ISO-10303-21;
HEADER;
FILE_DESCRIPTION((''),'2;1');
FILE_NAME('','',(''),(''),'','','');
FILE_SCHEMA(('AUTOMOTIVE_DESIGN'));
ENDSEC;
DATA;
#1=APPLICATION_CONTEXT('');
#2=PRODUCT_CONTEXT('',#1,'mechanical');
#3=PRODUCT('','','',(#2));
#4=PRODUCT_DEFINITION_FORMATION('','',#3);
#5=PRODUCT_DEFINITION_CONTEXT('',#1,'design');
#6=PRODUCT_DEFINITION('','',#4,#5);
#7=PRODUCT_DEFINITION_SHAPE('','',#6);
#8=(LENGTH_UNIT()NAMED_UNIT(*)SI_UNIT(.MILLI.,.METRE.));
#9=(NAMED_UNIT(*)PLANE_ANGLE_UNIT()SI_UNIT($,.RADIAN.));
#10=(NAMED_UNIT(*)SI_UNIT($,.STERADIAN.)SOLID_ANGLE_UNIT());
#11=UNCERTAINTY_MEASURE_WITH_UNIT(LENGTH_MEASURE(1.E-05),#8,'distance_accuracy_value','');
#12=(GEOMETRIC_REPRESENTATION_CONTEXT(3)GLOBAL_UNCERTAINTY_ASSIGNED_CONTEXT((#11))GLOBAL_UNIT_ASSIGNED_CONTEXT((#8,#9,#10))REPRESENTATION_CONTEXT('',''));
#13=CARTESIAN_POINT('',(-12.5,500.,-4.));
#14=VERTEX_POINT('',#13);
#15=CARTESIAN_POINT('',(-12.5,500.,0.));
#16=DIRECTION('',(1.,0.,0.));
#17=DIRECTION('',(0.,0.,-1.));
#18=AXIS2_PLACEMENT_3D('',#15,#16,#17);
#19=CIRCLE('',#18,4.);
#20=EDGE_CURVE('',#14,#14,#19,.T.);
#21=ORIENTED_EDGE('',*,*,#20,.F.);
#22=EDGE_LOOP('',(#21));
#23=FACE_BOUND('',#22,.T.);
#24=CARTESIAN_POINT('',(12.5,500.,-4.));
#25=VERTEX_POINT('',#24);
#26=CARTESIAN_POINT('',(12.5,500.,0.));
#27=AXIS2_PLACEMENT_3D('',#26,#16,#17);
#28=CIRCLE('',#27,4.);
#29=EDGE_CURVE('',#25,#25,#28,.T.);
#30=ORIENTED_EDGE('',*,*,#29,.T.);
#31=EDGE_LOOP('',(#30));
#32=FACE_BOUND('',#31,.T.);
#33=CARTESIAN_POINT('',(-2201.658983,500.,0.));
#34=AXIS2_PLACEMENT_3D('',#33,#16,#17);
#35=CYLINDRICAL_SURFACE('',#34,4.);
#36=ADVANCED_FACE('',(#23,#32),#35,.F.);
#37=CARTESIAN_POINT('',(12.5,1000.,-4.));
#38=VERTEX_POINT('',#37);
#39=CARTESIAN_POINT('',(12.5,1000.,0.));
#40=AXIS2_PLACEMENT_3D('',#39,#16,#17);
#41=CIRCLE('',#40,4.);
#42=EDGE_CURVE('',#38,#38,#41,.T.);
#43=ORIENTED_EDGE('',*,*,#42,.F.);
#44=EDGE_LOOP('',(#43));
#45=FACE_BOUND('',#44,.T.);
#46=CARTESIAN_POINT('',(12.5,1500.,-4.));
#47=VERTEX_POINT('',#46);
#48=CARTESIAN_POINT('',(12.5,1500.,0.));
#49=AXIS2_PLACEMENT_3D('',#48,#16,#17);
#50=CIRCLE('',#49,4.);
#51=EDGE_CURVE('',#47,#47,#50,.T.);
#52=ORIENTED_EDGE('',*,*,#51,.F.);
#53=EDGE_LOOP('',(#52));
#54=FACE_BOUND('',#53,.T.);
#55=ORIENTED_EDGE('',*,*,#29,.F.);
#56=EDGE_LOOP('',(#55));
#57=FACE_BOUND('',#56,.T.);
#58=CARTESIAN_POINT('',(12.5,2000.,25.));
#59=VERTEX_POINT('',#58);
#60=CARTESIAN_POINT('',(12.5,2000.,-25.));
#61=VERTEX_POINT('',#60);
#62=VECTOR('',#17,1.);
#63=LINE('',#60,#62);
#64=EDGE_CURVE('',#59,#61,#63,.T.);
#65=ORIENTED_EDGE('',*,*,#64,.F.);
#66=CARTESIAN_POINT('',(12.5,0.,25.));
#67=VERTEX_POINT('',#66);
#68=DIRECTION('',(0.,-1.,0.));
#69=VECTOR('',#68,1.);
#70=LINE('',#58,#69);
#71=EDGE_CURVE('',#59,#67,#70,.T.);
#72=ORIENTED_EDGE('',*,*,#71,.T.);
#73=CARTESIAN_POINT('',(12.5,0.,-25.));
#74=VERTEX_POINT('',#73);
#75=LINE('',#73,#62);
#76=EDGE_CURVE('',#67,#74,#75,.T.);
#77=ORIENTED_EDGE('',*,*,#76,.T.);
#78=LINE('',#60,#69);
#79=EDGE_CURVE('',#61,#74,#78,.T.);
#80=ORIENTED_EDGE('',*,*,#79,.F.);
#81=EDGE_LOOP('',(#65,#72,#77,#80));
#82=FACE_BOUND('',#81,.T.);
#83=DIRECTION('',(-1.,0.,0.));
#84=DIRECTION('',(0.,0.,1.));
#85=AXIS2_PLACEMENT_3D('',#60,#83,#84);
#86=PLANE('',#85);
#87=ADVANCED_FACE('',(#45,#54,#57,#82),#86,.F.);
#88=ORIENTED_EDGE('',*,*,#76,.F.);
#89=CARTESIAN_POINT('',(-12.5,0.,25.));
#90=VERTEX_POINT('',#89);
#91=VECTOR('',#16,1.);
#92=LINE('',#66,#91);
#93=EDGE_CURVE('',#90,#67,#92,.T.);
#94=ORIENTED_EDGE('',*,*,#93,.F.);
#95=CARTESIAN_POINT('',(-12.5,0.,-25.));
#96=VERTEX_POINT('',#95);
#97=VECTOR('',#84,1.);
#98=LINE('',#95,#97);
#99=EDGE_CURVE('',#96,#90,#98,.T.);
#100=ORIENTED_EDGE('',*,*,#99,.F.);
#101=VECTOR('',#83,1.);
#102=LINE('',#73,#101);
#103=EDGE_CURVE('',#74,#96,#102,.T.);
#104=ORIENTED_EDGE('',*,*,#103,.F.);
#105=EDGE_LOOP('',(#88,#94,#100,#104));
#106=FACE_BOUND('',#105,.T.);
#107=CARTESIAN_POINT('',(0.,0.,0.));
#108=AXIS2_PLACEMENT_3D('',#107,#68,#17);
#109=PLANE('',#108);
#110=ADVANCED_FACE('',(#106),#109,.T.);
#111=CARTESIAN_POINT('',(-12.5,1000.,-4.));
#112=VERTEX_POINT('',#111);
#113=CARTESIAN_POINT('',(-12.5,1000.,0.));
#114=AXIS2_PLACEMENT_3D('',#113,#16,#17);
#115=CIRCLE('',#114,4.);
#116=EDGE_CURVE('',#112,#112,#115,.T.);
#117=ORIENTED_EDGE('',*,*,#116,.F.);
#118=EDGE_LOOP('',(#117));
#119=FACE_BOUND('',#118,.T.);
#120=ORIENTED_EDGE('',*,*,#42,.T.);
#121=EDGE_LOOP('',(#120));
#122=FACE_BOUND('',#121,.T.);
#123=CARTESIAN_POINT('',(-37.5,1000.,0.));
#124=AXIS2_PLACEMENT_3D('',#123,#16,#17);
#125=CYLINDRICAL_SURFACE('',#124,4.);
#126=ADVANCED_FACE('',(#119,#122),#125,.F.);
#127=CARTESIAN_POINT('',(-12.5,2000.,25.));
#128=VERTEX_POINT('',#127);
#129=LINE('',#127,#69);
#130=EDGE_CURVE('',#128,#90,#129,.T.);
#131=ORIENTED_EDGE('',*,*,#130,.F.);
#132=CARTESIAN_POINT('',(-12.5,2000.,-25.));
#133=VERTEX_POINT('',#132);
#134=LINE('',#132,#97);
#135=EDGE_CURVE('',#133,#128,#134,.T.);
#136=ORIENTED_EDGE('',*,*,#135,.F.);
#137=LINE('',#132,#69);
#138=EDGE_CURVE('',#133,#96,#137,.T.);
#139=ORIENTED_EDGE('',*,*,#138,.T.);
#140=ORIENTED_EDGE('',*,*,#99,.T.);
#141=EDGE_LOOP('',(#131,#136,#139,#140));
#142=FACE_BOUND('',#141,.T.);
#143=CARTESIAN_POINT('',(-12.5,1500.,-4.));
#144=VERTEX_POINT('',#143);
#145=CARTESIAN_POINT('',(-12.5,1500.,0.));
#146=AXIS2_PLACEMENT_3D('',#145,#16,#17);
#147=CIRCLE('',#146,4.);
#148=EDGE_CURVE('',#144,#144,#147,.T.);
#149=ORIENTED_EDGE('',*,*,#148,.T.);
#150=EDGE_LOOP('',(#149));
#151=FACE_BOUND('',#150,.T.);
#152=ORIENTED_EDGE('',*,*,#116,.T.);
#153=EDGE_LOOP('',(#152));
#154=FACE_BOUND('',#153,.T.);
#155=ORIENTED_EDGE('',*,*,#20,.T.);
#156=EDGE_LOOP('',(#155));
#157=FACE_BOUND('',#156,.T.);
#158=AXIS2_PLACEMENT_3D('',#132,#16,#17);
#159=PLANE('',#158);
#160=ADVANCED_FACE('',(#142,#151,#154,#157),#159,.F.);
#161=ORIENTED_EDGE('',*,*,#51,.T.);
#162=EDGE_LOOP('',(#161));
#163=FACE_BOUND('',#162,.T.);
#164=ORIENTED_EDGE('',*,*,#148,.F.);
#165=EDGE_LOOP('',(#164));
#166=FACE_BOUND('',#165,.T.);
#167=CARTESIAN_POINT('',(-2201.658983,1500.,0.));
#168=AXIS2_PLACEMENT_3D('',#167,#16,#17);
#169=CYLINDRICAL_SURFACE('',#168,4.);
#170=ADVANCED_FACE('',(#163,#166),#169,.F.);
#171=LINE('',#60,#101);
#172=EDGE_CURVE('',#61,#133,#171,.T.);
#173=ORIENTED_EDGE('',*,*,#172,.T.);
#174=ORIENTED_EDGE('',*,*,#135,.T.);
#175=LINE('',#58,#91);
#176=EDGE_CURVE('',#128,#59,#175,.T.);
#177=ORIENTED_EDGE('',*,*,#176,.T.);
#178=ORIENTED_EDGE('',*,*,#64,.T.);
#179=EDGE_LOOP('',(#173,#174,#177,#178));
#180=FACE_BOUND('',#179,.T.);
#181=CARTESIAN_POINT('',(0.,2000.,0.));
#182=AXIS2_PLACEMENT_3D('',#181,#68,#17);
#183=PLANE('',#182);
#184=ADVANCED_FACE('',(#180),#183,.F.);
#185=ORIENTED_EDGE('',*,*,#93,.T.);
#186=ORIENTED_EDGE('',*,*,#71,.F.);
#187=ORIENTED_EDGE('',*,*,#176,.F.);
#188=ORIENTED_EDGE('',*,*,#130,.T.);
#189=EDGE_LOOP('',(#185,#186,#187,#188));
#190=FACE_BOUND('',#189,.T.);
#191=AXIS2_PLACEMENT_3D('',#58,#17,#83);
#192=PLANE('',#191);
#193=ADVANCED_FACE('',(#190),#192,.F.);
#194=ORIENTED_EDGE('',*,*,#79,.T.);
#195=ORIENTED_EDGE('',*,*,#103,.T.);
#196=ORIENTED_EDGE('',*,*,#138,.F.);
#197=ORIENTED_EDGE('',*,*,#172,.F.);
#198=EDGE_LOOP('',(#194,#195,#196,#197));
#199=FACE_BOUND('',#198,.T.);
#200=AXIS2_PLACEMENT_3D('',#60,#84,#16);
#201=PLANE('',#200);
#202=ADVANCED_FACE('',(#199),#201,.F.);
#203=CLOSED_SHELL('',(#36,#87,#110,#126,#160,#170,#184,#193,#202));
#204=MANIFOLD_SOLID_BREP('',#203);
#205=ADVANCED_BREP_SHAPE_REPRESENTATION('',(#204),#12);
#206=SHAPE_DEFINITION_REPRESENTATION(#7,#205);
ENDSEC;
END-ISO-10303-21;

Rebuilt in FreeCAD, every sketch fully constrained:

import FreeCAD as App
import Part
import Sketcher

V = App.Vector
Q = App.Units.Quantity

doc = App.newDocument("Part")
body = doc.addObject("PartDesign::Body", "Body")

sketch1 = body.newObject("Sketcher::SketchObject", "Sketch")
sketch1.AttachmentSupport = (doc.getObject("XZ_Plane"), [""])
sketch1.MapMode = "FlatFace"
sketch1.addGeometry([
    Part.LineSegment(V(-12.5, -25, 0), V(-12.5, 25, 0)),
    Part.LineSegment(V(-12.5, 25, 0), V(12.5, 25, 0)),
    Part.LineSegment(V(12.5, 25, 0), V(12.5, -25, 0)),
    Part.LineSegment(V(12.5, -25, 0), V(-12.5, -25, 0)),
], False)
sketch1.addConstraint([
    Sketcher.Constraint("Coincident", 0, 2, 1, 1),
    Sketcher.Constraint("Coincident", 1, 2, 2, 1),
    Sketcher.Constraint("Coincident", 2, 2, 3, 1),
    Sketcher.Constraint("Coincident", 3, 2, 0, 1),
    Sketcher.Constraint("Vertical", 0),
    Sketcher.Constraint("Horizontal", 1),
    Sketcher.Constraint("Vertical", 2),
    Sketcher.Constraint("Horizontal", 3),
    Sketcher.Constraint("Symmetric", 0, 2, 2, 2, -1, 1),
    Sketcher.Constraint("DistanceX", 1, 1, 1, 2, Q("25 mm")),
    Sketcher.Constraint("DistanceY", 0, 1, 0, 2, Q("50 mm")),
])
pad1 = body.newObject("PartDesign::Pad", "Pad")
pad1.Profile = sketch1
pad1.Length = 2000
pad1.Reversed = True

sketch2 = body.newObject("Sketcher::SketchObject", "Sketch001")
sketch2.AttachmentSupport = (doc.getObject("YZ_Plane"), [""])
sketch2.MapMode = "FlatFace"
sketch2.AttachmentOffset = App.Placement(V(0, 0, 12.5), App.Rotation())
sketch2.addGeometry([
    Part.Circle(V(1500, 0, 0), V(0, 0, 1), 4),
    Part.Circle(V(500, 0, 0), V(0, 0, 1), 4),
], False)
sketch2.addConstraint([
    Sketcher.Constraint("Equal", 0, 1),
    Sketcher.Constraint("PointOnObject", 0, 3, -1),
    Sketcher.Constraint("PointOnObject", 1, 3, -1),
    Sketcher.Constraint("Diameter", 0, Q("8 mm")),
    Sketcher.Constraint("DistanceX", -1, 1, 0, 3, Q("1500 mm")),
    Sketcher.Constraint("DistanceX", -1, 1, 1, 3, Q("500 mm")),
])
pocket1 = body.newObject("PartDesign::Pocket", "Pocket")
pocket1.Profile = sketch2
pocket1.Length = 2214.158983

sketch3 = body.newObject("Sketcher::SketchObject", "Sketch002")
sketch3.AttachmentSupport = (doc.getObject("YZ_Plane"), [""])
sketch3.MapMode = "FlatFace"
sketch3.AttachmentOffset = App.Placement(V(0, 0, 12.5), App.Rotation())
sketch3.addGeometry(Part.Circle(V(1000, 0, 0), V(0, 0, 1), 4), False)
sketch3.addConstraint([
    Sketcher.Constraint("PointOnObject", 0, 3, -1),
    Sketcher.Constraint("Diameter", 0, Q("8 mm")),
    Sketcher.Constraint("DistanceX", -1, 1, 0, 3, Q("1000 mm")),
])
pocket2 = body.newObject("PartDesign::Pocket", "Pocket001")
pocket2.Profile = sketch3
pocket2.Length = 50

doc.recompute()
